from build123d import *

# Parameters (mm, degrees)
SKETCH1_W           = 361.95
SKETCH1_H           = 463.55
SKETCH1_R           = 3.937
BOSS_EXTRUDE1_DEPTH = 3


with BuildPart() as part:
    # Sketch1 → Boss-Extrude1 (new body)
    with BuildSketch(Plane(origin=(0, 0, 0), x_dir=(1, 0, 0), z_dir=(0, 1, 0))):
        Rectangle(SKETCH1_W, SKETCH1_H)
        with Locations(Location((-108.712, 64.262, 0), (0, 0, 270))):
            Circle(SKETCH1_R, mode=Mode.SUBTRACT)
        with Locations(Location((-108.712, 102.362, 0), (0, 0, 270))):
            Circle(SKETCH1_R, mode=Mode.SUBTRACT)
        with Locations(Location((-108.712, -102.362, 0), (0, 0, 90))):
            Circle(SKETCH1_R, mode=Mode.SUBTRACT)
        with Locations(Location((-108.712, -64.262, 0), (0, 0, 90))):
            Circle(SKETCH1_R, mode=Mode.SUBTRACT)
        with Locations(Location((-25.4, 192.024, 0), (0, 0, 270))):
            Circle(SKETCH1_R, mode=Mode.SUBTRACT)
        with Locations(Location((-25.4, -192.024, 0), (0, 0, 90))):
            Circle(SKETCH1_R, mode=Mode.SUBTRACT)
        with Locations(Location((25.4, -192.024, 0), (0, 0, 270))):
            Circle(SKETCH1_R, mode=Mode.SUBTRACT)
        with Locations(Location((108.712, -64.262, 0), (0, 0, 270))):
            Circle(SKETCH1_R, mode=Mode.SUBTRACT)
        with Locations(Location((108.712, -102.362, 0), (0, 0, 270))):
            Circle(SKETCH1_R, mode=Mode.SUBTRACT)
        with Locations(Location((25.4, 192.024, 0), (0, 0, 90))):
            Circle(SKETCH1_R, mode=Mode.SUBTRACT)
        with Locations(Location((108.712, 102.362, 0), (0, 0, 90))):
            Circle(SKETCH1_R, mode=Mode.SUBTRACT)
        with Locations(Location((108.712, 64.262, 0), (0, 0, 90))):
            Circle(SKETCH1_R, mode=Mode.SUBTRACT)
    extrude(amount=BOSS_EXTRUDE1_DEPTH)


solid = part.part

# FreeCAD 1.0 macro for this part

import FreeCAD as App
import Part
import Sketcher

V = App.Vector
Q = App.Units.Quantity


def add_polygon(sketch, points):
    """Adds a closed chain of lines whose ends are joined by coincident constraints."""
    first, n = sketch.GeometryCount, len(points)
    for a, b in zip(points, points[1:] + points[:1]):
        sketch.addGeometry(Part.LineSegment(App.Vector(*a, 0), App.Vector(*b, 0)), False)
    for i in range(n):
        sketch.addConstraint(Sketcher.Constraint("Coincident", first + i, 2, first + (i + 1) % n, 1))

doc = App.newDocument("Part")
body = doc.addObject("PartDesign::Body", "Body")

# Sketch on XZ plane
sketch1 = doc.addObject("Sketcher::SketchObject", "Sketch")
body.addObject(sketch1)
sketch1.AttachmentSupport = (doc.XZ_Plane, [""])
sketch1.MapMode = "FlatFace"
add_polygon(sketch1, [(-181, -231.8), (-181, 231.8), (181, 231.8), (181, -231.8)])  # lines 0-3
sketch1.addGeometry(Part.Circle(V(-108.7, 102.4, 0), V(0, 0, 1), 3.9), False)  # 4
sketch1.addGeometry(Part.Circle(V(-25.4, 192, 0), V(0, 0, 1), 3.9), False)  # 5
sketch1.addGeometry(Part.Circle(V(-108.7, 64.3, 0), V(0, 0, 1), 3.9), False)  # 6
sketch1.addGeometry(Part.Circle(V(25.4, 192, 0), V(0, 0, 1), 3.9), False)  # 7
sketch1.addGeometry(Part.Circle(V(108.7, 102.4, 0), V(0, 0, 1), 3.9), False)  # 8
sketch1.addGeometry(Part.Circle(V(108.7, 64.3, 0), V(0, 0, 1), 3.9), False)  # 9
sketch1.addGeometry(Part.Circle(V(-108.7, -64.3, 0), V(0, 0, 1), 3.9), False)  # 10
sketch1.addGeometry(Part.Circle(V(-108.7, -102.4, 0), V(0, 0, 1), 3.9), False)  # 11
sketch1.addGeometry(Part.Circle(V(-25.4, -192, 0), V(0, 0, 1), 3.9), False)  # 12
sketch1.addGeometry(Part.Circle(V(108.7, -64.3, 0), V(0, 0, 1), 3.9), False)  # 13
sketch1.addGeometry(Part.Circle(V(25.4, -192, 0), V(0, 0, 1), 3.9), False)  # 14
sketch1.addGeometry(Part.Circle(V(108.7, -102.4, 0), V(0, 0, 1), 3.9), False)  # 15
sketch1.addConstraint(Sketcher.Constraint("Vertical", 0))
sketch1.addConstraint(Sketcher.Constraint("Horizontal", 1))
sketch1.addConstraint(Sketcher.Constraint("Vertical", 2))
sketch1.addConstraint(Sketcher.Constraint("Horizontal", 3))
sketch1.addConstraint(Sketcher.Constraint("Equal", 4, 5))
sketch1.addConstraint(Sketcher.Constraint("Equal", 5, 6))
sketch1.addConstraint(Sketcher.Constraint("Equal", 6, 7))
sketch1.addConstraint(Sketcher.Constraint("Equal", 7, 8))
sketch1.addConstraint(Sketcher.Constraint("Equal", 8, 9))
sketch1.addConstraint(Sketcher.Constraint("Equal", 9, 10))
sketch1.addConstraint(Sketcher.Constraint("Equal", 10, 11))
sketch1.addConstraint(Sketcher.Constraint("Equal", 11, 12))
sketch1.addConstraint(Sketcher.Constraint("Equal", 12, 13))
sketch1.addConstraint(Sketcher.Constraint("Equal", 13, 14))
sketch1.addConstraint(Sketcher.Constraint("Equal", 14, 15))
sketch1.addConstraint(Sketcher.Constraint("Symmetric", 9, 3, 10, 3, -1, 1))
sketch1.addConstraint(Sketcher.Constraint("Symmetric", 8, 3, 11, 3, -1, 1))
sketch1.addConstraint(Sketcher.Constraint("Symmetric", 7, 3, 12, 3, -1, 1))
sketch1.addConstraint(Sketcher.Constraint("Symmetric", 6, 3, 13, 3, -1, 1))
sketch1.addConstraint(Sketcher.Constraint("Symmetric", 5, 3, 14, 3, -1, 1))
sketch1.addConstraint(Sketcher.Constraint("Symmetric", 4, 3, 15, 3, -1, 1))
sketch1.addConstraint(Sketcher.Constraint("Symmetric", 0, 2, 2, 2, -1, 1))
sketch1.addConstraint(Sketcher.Constraint("Symmetric", 5, 3, 7, 3, -2))
sketch1.addConstraint(Sketcher.Constraint("Symmetric", 4, 3, 8, 3, -2))
sketch1.addConstraint(Sketcher.Constraint("Symmetric", 6, 3, 9, 3, -2))
sketch1.addConstraint(Sketcher.Constraint("Vertical", 4, 3, 6, 3))
sketch1.addConstraint(Sketcher.Constraint("Diameter", 4, Q("0.31 in")))
sketch1.addConstraint(Sketcher.Constraint("DistanceX", 5, 3, -1, 1, Q("1 in")))
sketch1.addConstraint(Sketcher.Constraint("DistanceX", 1, 1, 1, 2, Q("14.25 in")))
sketch1.addConstraint(Sketcher.Constraint("DistanceY", 0, 1, 0, 2, Q("18.25 in")))
sketch1.addConstraint(Sketcher.Constraint("DistanceY", 6, 3, 4, 3, Q("1.5 in")))
sketch1.addConstraint(Sketcher.Constraint("DistanceX", 4, 3, -1, 1, Q("4.28 in")))
sketch1.addConstraint(Sketcher.Constraint("DistanceY", -1, 1, 4, 3, Q("4.03 in")))
sketch1.addConstraint(Sketcher.Constraint("DistanceY", -1, 1, 5, 3, Q("7.56 in")))
pad1 = doc.addObject("PartDesign::Pad", "Pad")
body.addObject(pad1)
pad1.Profile = sketch1
pad1.Length = 3
pad1.Reversed = True

doc.recompute()
